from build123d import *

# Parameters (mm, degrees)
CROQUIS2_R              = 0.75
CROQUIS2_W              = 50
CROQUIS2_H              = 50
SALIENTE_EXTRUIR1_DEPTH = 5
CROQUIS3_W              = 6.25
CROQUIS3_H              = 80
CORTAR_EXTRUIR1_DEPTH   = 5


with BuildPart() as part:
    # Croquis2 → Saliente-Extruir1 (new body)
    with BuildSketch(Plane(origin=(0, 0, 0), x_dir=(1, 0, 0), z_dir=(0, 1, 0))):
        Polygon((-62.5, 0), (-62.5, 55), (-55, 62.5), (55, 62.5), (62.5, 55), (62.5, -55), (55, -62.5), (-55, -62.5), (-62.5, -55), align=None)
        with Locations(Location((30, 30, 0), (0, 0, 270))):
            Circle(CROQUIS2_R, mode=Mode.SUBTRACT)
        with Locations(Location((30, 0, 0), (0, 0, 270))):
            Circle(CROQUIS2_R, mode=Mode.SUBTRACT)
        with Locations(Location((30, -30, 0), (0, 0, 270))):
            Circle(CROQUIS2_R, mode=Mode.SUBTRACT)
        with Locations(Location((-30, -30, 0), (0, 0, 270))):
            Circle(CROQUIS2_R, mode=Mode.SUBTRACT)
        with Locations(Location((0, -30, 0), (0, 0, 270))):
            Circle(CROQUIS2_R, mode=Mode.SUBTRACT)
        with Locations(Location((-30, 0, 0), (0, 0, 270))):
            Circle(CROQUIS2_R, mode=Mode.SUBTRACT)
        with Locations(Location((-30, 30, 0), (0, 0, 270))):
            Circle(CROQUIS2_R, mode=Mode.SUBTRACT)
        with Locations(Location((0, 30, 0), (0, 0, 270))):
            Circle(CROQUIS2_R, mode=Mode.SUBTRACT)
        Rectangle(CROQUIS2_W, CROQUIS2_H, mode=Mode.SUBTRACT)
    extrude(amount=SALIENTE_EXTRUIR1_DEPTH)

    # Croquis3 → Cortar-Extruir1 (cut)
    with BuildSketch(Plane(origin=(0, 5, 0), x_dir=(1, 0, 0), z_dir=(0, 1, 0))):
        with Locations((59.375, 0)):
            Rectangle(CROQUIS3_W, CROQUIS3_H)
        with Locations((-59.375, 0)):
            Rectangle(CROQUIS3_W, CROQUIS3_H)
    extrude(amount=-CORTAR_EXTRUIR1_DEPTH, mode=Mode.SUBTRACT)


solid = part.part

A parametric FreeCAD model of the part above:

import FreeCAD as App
import Part
import Sketcher

V = App.Vector

doc = App.newDocument("Part")
body = doc.addObject("PartDesign::Body", "Body")

# Sketch on XZ plane
sketch1 = doc.addObject("Sketcher::SketchObject", "Sketch")
body.addObject(sketch1)
sketch1.AttachmentSupport = (doc.XZ_Plane, [""])
sketch1.MapMode = "FlatFace"
sketch1.addGeometry(Part.LineSegment(V(-62.5, -55, 0), V(-62.5, 55, 0)), False)
sketch1.addGeometry(Part.LineSegment(V(-62.5, 55, 0), V(-55, 62.5, 0)), False)
sketch1.addGeometry(Part.LineSegment(V(-55, 62.5, 0), V(55, 62.5, 0)), False)
sketch1.addGeometry(Part.LineSegment(V(55, 62.5, 0), V(62.5, 55, 0)), False)
sketch1.addGeometry(Part.LineSegment(V(62.5, 55, 0), V(62.5, -55, 0)), False)
sketch1.addGeometry(Part.LineSegment(V(62.5, -55, 0), V(55, -62.5, 0)), False)
sketch1.addGeometry(Part.LineSegment(V(55, -62.5, 0), V(-55, -62.5, 0)), False)
sketch1.addGeometry(Part.LineSegment(V(-55, -62.5, 0), V(-62.5, -55, 0)), False)
sketch1.addGeometry(Part.Circle(V(30, 30, 0), V(0, 0, 1), 0.8), False)
sketch1.addGeometry(Part.Circle(V(0, 30, 0), V(0, 0, 1), 0.8), False)
sketch1.addGeometry(Part.Circle(V(-30, 30, 0), V(0, 0, 1), 0.8), False)
sketch1.addGeometry(Part.Circle(V(30, 0, 0), V(0, 0, 1), 0.8), False)
sketch1.addGeometry(Part.Circle(V(30, -30, 0), V(0, 0, 1), 0.8), False)
sketch1.addGeometry(Part.LineSegment(V(-25, 25, 0), V(-25, -25, 0)), False)
sketch1.addGeometry(Part.LineSegment(V(-25, -25, 0), V(25, -25, 0)), False)
sketch1.addGeometry(Part.LineSegment(V(25, -25, 0), V(25, 25, 0)), False)
sketch1.addGeometry(Part.LineSegment(V(25, 25, 0), V(-25, 25, 0)), False)
sketch1.addGeometry(Part.Circle(V(-30, 0, 0), V(0, 0, 1), 0.8), False)
sketch1.addGeometry(Part.Circle(V(0, -30, 0), V(0, 0, 1), 0.8), False)
sketch1.addGeometry(Part.Circle(V(-30, -30, 0), V(0, 0, 1), 0.8), False)
sketch1.addConstraint(Sketcher.Constraint("Coincident", 0, 2, 1, 1))
sketch1.addConstraint(Sketcher.Constraint("Coincident", 1, 2, 2, 1))
sketch1.addConstraint(Sketcher.Constraint("Coincident", 2, 2, 3, 1))
sketch1.addConstraint(Sketcher.Constraint("Coincident", 3, 2, 4, 1))
sketch1.addConstraint(Sketcher.Constraint("Coincident", 4, 2, 5, 1))
sketch1.addConstraint(Sketcher.Constraint("Coincident", 5, 2, 6, 1))
sketch1.addConstraint(Sketcher.Constraint("Coincident", 6, 2, 7, 1))
sketch1.addConstraint(Sketcher.Constraint("Coincident", 7, 2, 0, 1))
sketch1.addConstraint(Sketcher.Constraint("Coincident", 13, 2, 14, 1))
sketch1.addConstraint(Sketcher.Constraint("Coincident", 14, 2, 15, 1))
sketch1.addConstraint(Sketcher.Constraint("Coincident", 15, 2, 16, 1))
sketch1.addConstraint(Sketcher.Constraint("Coincident", 16, 2, 13, 1))
sketch1.addConstraint(Sketcher.Constraint("Vertical", 0))
sketch1.addConstraint(Sketcher.Constraint("Horizontal", 2))
sketch1.addConstraint(Sketcher.Constraint("Vertical", 4))
sketch1.addConstraint(Sketcher.Constraint("Horizontal", 6))
sketch1.addConstraint(Sketcher.Constraint("Vertical", 13))
sketch1.addConstraint(Sketcher.Constraint("Horizontal", 14))
sketch1.addConstraint(Sketcher.Constraint("Vertical", 15))
sketch1.addConstraint(Sketcher.Constraint("Horizontal", 16))
sketch1.addConstraint(Sketcher.Constraint("Equal", 8, 9))
sketch1.addConstraint(Sketcher.Constraint("Equal", 9, 10))
sketch1.addConstraint(Sketcher.Constraint("Equal", 10, 11))
sketch1.addConstraint(Sketcher.Constraint("Equal", 11, 12))
sketch1.addConstraint(Sketcher.Constraint("Equal", 12, 17))
sketch1.addConstraint(Sketcher.Constraint("Equal", 17, 18))
sketch1.addConstraint(Sketcher.Constraint("Equal", 18, 19))
sketch1.addConstraint(Sketcher.Constraint("Symmetric", 10, 3, 12, 3, -1, 1))
sketch1.addConstraint(Sketcher.Constraint("Symmetric", 11, 3, 17, 3, -1, 1))
sketch1.addConstraint(Sketcher.Constraint("Symmetric", 9, 3, 18, 3, -1, 1))
sketch1.addConstraint(Sketcher.Constraint("Symmetric", 8, 3, 19, 3, -1, 1))
sketch1.addConstraint(Sketcher.Constraint("Symmetric", 0, 2, 4, 2, -1, 1))
sketch1.addConstraint(Sketcher.Constraint("Symmetric", 1, 2, 5, 2, -1, 1))
sketch1.addConstraint(Sketcher.Constraint("Symmetric", 13, 2, 15, 2, -1, 1))
sketch1.addConstraint(Sketcher.Constraint("Symmetric", 8, 3, 10, 3, -2))
sketch1.addConstraint(Sketcher.Constraint("PointOnObject", 9, 3, -2))
sketch1.addConstraint(Sketcher.Constraint("PointOnObject", 11, 3, -1))
sketch1.addConstraint(Sketcher.Constraint("Perpendicular", 1, 3))
sketch1.addConstraint(Sketcher.Constraint("Perpendicular", 5, 7))
sketch1.addConstraint(Sketcher.Constraint("Horizontal", 8, 3, 9, 3))
sketch1.addConstraint(Sketcher.Constraint("Horizontal", 0, 2, 3, 2))
sketch1.addConstraint(Sketcher.Constraint("Horizontal", 4, 2, 7, 2))
sketch1.addConstraint(Sketcher.Constraint("Vertical", 8, 3, 11, 3))
sketch1.addConstraint(Sketcher.Constraint("Vertical", 2, 2, 5, 2))
sketch1.addConstraint(Sketcher.Constraint("Equal", 6, 0))
sketch1.addConstraint(Sketcher.Constraint("Equal", 16, 13))
sketch1.addConstraint(Sketcher.Constraint("Diameter", 8, 1.5))
sketch1.addConstraint(Sketcher.Constraint("DistanceX", 2, 1, 2, 2, 110.0))
sketch1.addConstraint(Sketcher.Constraint("DistanceX", 14, 1, 14, 2, 50.0))
sketch1.addConstraint(Sketcher.Constraint("DistanceX", -1, 1, 8, 3, 30.0))
sketch1.addConstraint(Sketcher.Constraint("DistanceY", -1, 1, 8, 3, 30.0))
sketch1.addConstraint(Sketcher.Constraint("DistanceX", 0, 2, -1, 1, 62.5))
pad1 = doc.addObject("PartDesign::Pad", "Pad")
body.addObject(pad1)
pad1.Profile = sketch1
pad1.Length = 5
pad1.Reversed = True

# Sketch on XZ plane
sketch2 = doc.addObject("Sketcher::SketchObject", "Sketch001")
body.addObject(sketch2)
sketch2.AttachmentSupport = (doc.XZ_Plane, [""])
sketch2.MapMode = "FlatFace"
sketch2.AttachmentOffset = App.Placement(V(0, 0, -5), App.Rotation())
sketch2.addGeometry(Part.LineSegment(V(56, -40, 0), V(56, 40, 0)), False)
sketch2.addGeometry(Part.LineSegment(V(56, 40, 0), V(62, 40, 0)), False)
sketch2.addGeometry(Part.LineSegment(V(62, 40, 0), V(62, -40, 0)), False)
sketch2.addGeometry(Part.LineSegment(V(62, -40, 0), V(56, -40, 0)), False)
sketch2.addGeometry(Part.LineSegment(V(-62, -40, 0), V(-62, 40, 0)), False)
sketch2.addGeometry(Part.LineSegment(V(-62, 40, 0), V(-56, 40, 0)), False)
sketch2.addGeometry(Part.LineSegment(V(-56, 40, 0), V(-56, -40, 0)), False)
sketch2.addGeometry(Part.LineSegment(V(-56, -40, 0), V(-62, -40, 0)), False)
sketch2.addConstraint(Sketcher.Constraint("Coincident", 0, 2, 1, 1))
sketch2.addConstraint(Sketcher.Constraint("Coincident", 1, 2, 2, 1))
sketch2.addConstraint(Sketcher.Constraint("Coincident", 2, 2, 3, 1))
sketch2.addConstraint(Sketcher.Constraint("Coincident", 3, 2, 0, 1))
sketch2.addConstraint(Sketcher.Constraint("Coincident", 4, 2, 5, 1))
sketch2.addConstraint(Sketcher.Constraint("Coincident", 5, 2, 6, 1))
sketch2.addConstraint(Sketcher.Constraint("Coincident", 6, 2, 7, 1))
sketch2.addConstraint(Sketcher.Constraint("Coincident", 7, 2, 4, 1))
sketch2.addConstraint(Sketcher.Constraint("Vertical", 0))
sketch2.addConstraint(Sketcher.Constraint("Horizontal", 1))
sketch2.addConstraint(Sketcher.Constraint("Vertical", 2))
sketch2.addConstraint(Sketcher.Constraint("Horizontal", 3))
sketch2.addConstraint(Sketcher.Constraint("Vertical", 4))
sketch2.addConstraint(Sketcher.Constraint("Horizontal", 5))
sketch2.addConstraint(Sketcher.Constraint("Vertical", 6))
sketch2.addConstraint(Sketcher.Constraint("Horizontal", 7))
sketch2.addConstraint(Sketcher.Constraint("Symmetric", 2, 2, 4, 2, -1, 1))
sketch2.addConstraint(Sketcher.Constraint("Symmetric", 0, 2, 6, 2, -1, 1))
sketch2.addConstraint(Sketcher.Constraint("Horizontal", 1, 2, 4, 2))
sketch2.addConstraint(Sketcher.Constraint("DistanceY", 0, 1, 0, 2, 80.0))
sketch2.addConstraint(Sketcher.Constraint("DistanceX", 4, 2, 1, 2, 125.0))
sketch2.addConstraint(Sketcher.Constraint("DistanceX", 1, 1, 1, 2, 6.25))
pocket1 = doc.addObject("PartDesign::Pocket", "Pocket")
body.addObject(pocket1)
pocket1.Profile = sketch2
pocket1.Length = 5
pocket1.Reversed = True

doc.recompute()
